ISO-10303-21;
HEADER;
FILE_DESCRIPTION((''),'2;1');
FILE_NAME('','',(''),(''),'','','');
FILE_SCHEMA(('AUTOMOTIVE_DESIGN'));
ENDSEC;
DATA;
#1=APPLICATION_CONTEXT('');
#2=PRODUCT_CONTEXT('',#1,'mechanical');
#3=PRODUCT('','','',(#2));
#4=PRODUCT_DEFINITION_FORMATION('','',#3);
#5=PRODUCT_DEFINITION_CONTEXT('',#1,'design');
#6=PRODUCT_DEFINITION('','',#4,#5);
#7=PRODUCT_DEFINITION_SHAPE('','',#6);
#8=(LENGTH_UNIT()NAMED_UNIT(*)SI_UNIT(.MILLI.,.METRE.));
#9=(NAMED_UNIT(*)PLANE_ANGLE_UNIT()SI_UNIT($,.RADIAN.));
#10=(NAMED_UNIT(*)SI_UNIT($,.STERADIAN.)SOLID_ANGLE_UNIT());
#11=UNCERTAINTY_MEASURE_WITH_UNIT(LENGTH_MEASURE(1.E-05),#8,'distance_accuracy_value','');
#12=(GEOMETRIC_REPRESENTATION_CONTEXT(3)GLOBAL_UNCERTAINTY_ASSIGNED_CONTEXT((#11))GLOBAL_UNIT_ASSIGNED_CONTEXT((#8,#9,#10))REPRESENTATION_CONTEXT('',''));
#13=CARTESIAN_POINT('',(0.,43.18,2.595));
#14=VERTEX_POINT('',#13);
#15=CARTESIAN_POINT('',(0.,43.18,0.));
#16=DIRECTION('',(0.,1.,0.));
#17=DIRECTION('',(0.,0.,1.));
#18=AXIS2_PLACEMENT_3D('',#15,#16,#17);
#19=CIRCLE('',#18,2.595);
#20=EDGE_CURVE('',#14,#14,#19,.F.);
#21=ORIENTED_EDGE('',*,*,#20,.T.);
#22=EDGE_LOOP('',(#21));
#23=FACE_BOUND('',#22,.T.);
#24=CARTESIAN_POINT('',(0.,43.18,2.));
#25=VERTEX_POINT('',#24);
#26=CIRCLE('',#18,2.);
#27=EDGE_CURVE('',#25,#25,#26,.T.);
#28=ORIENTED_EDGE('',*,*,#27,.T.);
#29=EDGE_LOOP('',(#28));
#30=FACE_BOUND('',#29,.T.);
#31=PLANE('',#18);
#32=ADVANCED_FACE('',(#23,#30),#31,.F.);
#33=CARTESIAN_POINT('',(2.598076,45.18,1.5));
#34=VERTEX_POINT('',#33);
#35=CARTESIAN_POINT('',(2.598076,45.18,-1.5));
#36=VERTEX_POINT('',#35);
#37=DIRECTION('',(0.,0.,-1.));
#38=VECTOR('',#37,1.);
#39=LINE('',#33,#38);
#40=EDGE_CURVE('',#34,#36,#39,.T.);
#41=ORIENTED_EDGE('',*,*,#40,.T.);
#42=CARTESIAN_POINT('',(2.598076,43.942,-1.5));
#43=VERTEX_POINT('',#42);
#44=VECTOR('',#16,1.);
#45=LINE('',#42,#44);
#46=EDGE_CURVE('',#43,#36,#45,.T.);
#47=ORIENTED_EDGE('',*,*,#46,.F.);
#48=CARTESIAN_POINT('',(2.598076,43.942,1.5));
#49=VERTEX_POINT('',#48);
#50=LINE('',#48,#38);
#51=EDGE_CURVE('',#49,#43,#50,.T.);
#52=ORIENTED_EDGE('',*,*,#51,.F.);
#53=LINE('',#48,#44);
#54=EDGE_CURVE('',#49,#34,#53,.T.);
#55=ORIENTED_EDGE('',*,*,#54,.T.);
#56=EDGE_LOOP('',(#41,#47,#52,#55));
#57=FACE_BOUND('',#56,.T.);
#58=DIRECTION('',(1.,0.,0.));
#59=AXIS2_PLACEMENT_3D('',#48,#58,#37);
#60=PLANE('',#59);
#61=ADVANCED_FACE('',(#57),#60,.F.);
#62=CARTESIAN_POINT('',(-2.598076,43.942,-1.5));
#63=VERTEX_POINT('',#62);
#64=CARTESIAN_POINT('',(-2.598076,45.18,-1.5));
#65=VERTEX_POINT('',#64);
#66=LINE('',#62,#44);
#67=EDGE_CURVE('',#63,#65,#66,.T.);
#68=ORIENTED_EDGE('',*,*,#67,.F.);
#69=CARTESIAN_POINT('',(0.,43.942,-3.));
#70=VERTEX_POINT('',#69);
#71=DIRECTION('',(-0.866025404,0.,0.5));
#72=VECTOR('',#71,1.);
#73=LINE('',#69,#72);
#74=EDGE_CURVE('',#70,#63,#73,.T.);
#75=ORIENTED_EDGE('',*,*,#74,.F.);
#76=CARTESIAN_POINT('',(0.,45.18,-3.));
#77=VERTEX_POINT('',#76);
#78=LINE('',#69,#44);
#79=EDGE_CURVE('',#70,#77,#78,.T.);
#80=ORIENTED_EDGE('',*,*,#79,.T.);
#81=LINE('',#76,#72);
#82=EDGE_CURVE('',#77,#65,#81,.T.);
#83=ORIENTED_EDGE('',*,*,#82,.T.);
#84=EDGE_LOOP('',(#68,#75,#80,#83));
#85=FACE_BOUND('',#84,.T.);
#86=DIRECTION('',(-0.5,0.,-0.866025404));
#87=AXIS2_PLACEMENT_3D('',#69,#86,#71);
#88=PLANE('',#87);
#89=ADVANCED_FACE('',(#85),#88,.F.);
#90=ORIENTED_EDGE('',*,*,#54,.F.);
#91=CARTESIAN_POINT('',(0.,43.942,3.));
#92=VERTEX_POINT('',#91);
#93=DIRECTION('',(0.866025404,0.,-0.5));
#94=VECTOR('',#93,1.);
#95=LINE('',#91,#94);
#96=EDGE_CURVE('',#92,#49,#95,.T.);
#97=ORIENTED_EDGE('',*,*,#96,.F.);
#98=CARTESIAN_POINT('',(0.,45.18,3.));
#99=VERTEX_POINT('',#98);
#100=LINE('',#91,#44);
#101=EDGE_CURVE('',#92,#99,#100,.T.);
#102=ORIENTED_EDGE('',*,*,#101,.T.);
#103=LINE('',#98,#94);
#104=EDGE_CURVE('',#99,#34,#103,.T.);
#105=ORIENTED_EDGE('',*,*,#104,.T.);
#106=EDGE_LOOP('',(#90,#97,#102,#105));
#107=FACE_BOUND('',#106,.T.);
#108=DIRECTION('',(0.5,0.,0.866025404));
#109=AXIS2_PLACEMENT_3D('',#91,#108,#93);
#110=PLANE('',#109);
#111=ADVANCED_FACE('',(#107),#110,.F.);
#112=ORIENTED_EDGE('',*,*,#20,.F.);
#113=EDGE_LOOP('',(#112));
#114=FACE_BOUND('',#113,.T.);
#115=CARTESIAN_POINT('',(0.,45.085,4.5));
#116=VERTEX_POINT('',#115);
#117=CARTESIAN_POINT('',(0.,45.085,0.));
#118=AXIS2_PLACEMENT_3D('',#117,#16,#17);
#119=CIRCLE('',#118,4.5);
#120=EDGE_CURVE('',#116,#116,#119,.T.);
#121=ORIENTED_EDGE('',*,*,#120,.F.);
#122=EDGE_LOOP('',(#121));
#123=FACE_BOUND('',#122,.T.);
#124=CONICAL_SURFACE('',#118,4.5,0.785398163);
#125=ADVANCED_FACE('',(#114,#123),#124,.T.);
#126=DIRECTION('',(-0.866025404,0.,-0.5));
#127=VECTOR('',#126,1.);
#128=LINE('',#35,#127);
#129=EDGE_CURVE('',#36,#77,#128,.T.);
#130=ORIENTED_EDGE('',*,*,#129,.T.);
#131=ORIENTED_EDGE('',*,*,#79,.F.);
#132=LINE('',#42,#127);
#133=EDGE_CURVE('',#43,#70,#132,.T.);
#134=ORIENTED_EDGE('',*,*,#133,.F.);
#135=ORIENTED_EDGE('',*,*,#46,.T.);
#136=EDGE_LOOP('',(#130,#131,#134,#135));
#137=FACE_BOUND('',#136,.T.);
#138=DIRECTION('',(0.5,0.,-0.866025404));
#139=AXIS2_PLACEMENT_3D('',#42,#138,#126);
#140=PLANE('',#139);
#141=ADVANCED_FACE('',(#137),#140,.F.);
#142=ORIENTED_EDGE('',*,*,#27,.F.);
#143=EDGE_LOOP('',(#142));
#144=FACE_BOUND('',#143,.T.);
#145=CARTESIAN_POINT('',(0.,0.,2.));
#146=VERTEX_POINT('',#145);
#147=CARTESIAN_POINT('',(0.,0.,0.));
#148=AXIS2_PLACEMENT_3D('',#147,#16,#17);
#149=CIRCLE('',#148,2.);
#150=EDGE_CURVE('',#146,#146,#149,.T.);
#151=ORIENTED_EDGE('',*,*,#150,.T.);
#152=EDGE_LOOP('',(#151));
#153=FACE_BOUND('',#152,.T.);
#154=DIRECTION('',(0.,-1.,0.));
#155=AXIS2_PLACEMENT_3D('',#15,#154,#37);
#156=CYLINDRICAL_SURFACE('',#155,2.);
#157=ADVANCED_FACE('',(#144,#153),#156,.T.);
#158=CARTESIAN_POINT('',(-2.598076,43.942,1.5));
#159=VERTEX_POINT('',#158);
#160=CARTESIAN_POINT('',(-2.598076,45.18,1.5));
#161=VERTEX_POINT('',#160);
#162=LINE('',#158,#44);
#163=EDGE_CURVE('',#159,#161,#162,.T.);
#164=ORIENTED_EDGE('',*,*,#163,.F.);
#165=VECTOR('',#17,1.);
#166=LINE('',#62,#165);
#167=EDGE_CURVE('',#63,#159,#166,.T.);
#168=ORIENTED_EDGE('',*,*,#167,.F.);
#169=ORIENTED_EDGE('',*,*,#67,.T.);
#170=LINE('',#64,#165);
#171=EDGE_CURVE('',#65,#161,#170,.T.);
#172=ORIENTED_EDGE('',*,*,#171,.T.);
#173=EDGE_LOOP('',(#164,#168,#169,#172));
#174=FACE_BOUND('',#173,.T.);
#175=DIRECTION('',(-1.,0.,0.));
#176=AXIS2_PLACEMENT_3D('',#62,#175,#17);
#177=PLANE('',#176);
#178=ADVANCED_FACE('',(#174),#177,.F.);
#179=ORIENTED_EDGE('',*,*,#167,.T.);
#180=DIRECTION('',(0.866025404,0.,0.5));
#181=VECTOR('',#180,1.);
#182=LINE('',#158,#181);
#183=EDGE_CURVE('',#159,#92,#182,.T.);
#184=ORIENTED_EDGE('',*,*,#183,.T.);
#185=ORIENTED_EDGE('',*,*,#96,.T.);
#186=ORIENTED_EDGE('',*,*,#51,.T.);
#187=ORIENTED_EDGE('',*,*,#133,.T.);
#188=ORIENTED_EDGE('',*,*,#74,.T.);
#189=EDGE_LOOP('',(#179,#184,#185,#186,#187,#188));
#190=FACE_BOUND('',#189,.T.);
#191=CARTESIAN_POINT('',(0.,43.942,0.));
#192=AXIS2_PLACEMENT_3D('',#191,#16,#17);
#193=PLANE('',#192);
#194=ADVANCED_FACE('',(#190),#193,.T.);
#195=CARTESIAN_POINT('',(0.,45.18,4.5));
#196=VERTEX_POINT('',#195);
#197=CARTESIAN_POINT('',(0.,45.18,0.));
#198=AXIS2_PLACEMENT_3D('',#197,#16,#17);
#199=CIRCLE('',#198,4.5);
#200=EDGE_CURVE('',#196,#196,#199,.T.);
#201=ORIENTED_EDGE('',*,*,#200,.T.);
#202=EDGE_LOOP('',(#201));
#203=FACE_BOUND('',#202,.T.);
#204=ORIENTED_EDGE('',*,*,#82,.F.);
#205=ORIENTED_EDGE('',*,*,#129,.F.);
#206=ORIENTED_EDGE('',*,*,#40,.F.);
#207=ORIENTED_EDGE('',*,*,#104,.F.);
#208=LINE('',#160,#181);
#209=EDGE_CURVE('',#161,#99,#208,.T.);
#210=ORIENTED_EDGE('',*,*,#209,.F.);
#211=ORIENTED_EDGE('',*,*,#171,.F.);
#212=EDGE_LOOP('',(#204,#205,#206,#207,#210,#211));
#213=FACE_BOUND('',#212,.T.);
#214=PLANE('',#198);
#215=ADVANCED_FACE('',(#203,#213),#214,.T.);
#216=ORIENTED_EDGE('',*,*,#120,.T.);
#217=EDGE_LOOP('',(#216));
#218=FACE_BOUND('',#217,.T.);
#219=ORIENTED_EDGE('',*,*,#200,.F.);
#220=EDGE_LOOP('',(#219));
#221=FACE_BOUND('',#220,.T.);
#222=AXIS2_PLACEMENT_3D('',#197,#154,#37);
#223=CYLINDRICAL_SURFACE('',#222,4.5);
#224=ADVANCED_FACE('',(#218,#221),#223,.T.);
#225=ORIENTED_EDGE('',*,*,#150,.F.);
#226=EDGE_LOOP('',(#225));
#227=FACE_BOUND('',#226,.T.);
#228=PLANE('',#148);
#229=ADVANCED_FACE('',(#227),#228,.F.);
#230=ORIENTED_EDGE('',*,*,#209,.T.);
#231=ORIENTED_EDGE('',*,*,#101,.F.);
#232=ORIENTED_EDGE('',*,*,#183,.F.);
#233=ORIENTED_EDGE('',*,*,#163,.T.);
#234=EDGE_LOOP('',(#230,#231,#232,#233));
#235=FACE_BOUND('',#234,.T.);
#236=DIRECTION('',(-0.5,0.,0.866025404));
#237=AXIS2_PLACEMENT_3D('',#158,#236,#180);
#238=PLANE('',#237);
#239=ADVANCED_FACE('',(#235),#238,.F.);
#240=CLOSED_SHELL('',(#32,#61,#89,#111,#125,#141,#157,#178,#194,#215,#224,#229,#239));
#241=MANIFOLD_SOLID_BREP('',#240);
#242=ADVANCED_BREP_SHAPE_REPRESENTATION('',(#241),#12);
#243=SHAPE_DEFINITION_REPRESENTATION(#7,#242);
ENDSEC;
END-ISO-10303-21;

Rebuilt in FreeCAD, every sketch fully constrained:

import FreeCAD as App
import Part
import Sketcher
from FreeCAD import Vector
Q = App.Units.Quantity


def edges_at(feature, points):
    """Names of the edges that pass closest to the given points."""
    edges = feature.Shape.Edges
    near = lambda p: min(range(len(edges)), key=lambda i: edges[i].distToShape(Part.Vertex(*p))[0])
    return sorted({f"Edge{near(p) + 1}" for p in points})


def add_polygon(sketch, points):
    """Adds a closed chain of lines whose ends are joined by coincident constraints."""
    first, n = sketch.GeometryCount, len(points)
    for a, b in zip(points, points[1:] + points[:1]):
        sketch.addGeometry(Part.LineSegment(App.Vector(*a, 0), App.Vector(*b, 0)), False)
    for i in range(n):
        sketch.addConstraint(Sketcher.Constraint("Coincident", first + i, 2, first + (i + 1) % n, 1))

doc = App.newDocument("Part")
body = doc.addObject("PartDesign::Body", "Body")

# Sketch on XZ plane
sketch1 = body.newObject("Sketcher::SketchObject", "Sketch")
sketch1.AttachmentSupport = (doc.getObject("XZ_Plane"), [""])
sketch1.MapMode = "FlatFace"
sketch1.addGeometry(Part.Circle(Vector(0, 0, 0), Vector(0, 0, 1), 2), False)
sketch1.addConstraint(Sketcher.Constraint("Coincident", 0, 3, -1, 1))
sketch1.addConstraint(Sketcher.Constraint("Diameter", 0, 4.0))
pad1 = body.newObject("PartDesign::Pad", "Pad")
pad1.Profile = sketch1
pad1.Length = 43.18
pad1.Reversed = True

# Sketch on XZ plane
sketch2 = body.newObject("Sketcher::SketchObject", "Sketch001")
sketch2.AttachmentSupport = (doc.getObject("XZ_Plane"), [""])
sketch2.MapMode = "FlatFace"
sketch2.AttachmentOffset = App.Placement(Vector(0, 0, -43.18), App.Rotation())
sketch2.addGeometry(Part.Circle(Vector(0, 0, 0), Vector(0, 0, 1), 4.5), False)
sketch2.addConstraint(Sketcher.Constraint("Coincident", 0, 3, -1, 1))
sketch2.addConstraint(Sketcher.Constraint("Diameter", 0, 9.0))
pad2 = body.newObject("PartDesign::Pad", "Pad001")
pad2.Profile = sketch2
pad2.Length = 2
pad2.Reversed = True

# Sketch on XZ plane
sketch3 = body.newObject("Sketcher::SketchObject", "Sketch002")
sketch3.AttachmentSupport = (doc.getObject("XZ_Plane"), [""])
sketch3.MapMode = "FlatFace"
sketch3.AttachmentOffset = App.Placement(Vector(0, 0, -45.18), App.Rotation())
add_polygon(sketch3, [(0, -3), (-2.6, -1.5), (-2.6, 1.5), (0, 3), (2.6, 1.5), (2.6, -1.5)])  # lines 0-5
sketch3.addConstraint(Sketcher.Constraint("Vertical", 1))
sketch3.addConstraint(Sketcher.Constraint("Vertical", 4))
sketch3.addConstraint(Sketcher.Constraint("Symmetric", 0, 2, 3, 2, -1, 1))
sketch3.addConstraint(Sketcher.Constraint("Symmetric", 2, 2, 5, 2, -1, 1))
sketch3.addConstraint(Sketcher.Constraint("PointOnObject", 2, 2, -2))
sketch3.addConstraint(Sketcher.Constraint("Parallel", 2, 5))
sketch3.addConstraint(Sketcher.Constraint("Horizontal", 1, 2, 3, 2))
sketch3.addConstraint(Sketcher.Constraint("DistanceY", 1, 1, 1, 2, 3.0))
sketch3.addConstraint(Sketcher.Constraint("Angle", 0, Q("150 deg")))
sketch3.addConstraint(Sketcher.Constraint("Distance", 0, 3.0))
pocket1 = body.newObject("PartDesign::Pocket", "Pocket")
pocket1.Profile = sketch3
pocket1.Length = 1.238
pocket1.Reversed = True
doc.recompute()

chamfer = body.newObject("PartDesign::Chamfer", "Chamfer")
chamfer.Base = (pocket1, edges_at(pocket1, [(0, 43.18, -4.5)]))
chamfer.Size = 1.905

doc.recompute()
